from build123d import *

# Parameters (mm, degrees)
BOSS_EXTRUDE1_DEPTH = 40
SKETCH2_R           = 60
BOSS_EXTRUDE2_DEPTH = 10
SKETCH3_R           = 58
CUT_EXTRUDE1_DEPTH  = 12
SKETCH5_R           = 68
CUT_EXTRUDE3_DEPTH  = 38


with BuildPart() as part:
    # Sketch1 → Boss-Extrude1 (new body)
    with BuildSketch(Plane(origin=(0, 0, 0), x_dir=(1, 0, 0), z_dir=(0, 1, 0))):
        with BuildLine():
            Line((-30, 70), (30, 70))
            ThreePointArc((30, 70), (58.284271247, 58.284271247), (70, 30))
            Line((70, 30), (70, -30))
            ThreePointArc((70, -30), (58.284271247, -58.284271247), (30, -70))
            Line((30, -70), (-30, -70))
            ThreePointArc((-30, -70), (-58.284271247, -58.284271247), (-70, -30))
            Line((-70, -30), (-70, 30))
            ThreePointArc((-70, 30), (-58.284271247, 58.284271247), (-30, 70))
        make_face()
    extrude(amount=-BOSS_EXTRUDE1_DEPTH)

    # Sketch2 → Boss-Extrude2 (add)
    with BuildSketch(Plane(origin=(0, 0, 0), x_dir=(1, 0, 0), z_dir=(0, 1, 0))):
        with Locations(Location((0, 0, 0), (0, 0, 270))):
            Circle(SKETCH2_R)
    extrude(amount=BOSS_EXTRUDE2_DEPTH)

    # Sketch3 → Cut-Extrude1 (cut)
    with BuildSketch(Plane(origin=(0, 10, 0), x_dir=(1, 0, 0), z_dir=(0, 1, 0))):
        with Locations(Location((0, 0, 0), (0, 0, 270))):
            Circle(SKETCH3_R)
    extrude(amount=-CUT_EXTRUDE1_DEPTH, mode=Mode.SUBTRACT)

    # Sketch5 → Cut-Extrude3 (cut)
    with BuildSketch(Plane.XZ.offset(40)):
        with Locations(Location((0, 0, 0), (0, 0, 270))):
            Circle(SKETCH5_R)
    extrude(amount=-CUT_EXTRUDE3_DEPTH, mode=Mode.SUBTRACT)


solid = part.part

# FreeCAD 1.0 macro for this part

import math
import FreeCAD as App
import Part
import Sketcher
from FreeCAD import Vector
Q = App.Units.Quantity

doc = App.newDocument("Part")
body = doc.addObject("PartDesign::Body", "Body")

# Sketch on XZ plane
sketch1 = doc.addObject("Sketcher::SketchObject", "Sketch")
body.addObject(sketch1)
sketch1.AttachmentSupport = (doc.XZ_Plane, [""])
sketch1.MapMode = "FlatFace"
sketch1.addGeometry(Part.LineSegment(Vector(30, -70, 0), Vector(-30, -70, 0)), False)
sketch1.addGeometry(Part.ArcOfCircle(Part.Circle(Vector(-30, -30, 0), Vector(0, 0, 1), 40), math.radians(-180), math.radians(-90)), False)
sketch1.addGeometry(Part.LineSegment(Vector(-70, -30, 0), Vector(-70, 30, 0)), False)
sketch1.addGeometry(Part.ArcOfCircle(Part.Circle(Vector(-30, 30, 0), Vector(0, 0, 1), 40), math.radians(90), math.radians(180)), False)
sketch1.addGeometry(Part.LineSegment(Vector(-30, 70, 0), Vector(30, 70, 0)), False)
sketch1.addGeometry(Part.ArcOfCircle(Part.Circle(Vector(30, 30, 0), Vector(0, 0, 1), 40), math.radians(0), math.radians(90)), False)
sketch1.addGeometry(Part.LineSegment(Vector(70, 30, 0), Vector(70, -30, 0)), False)
sketch1.addGeometry(Part.ArcOfCircle(Part.Circle(Vector(30, -30, 0), Vector(0, 0, 1), 40), math.radians(-90), math.radians(0)), False)
sketch1.addConstraint(Sketcher.Constraint("Tangent", 0, 2, 1, 2))
sketch1.addConstraint(Sketcher.Constraint("Tangent", 1, 1, 2, 1))
sketch1.addConstraint(Sketcher.Constraint("Tangent", 2, 2, 3, 2))
sketch1.addConstraint(Sketcher.Constraint("Tangent", 3, 1, 4, 1))
sketch1.addConstraint(Sketcher.Constraint("Tangent", 4, 2, 5, 2))
sketch1.addConstraint(Sketcher.Constraint("Tangent", 5, 1, 6, 1))
sketch1.addConstraint(Sketcher.Constraint("Tangent", 6, 2, 7, 2))
sketch1.addConstraint(Sketcher.Constraint("Tangent", 7, 1, 0, 1))
sketch1.addConstraint(Sketcher.Constraint("Horizontal", 0))
sketch1.addConstraint(Sketcher.Constraint("Vertical", 2))
sketch1.addConstraint(Sketcher.Constraint("Horizontal", 4))
sketch1.addConstraint(Sketcher.Constraint("Vertical", 6))
sketch1.addConstraint(Sketcher.Constraint("Equal", 1, 3))
sketch1.addConstraint(Sketcher.Constraint("Equal", 3, 5))
sketch1.addConstraint(Sketcher.Constraint("Equal", 5, 7))
sketch1.addConstraint(Sketcher.Constraint("Symmetric", 1, 3, 5, 3, -1, 1))
sketch1.addConstraint(Sketcher.Constraint("Equal", 4, 2))
sketch1.addConstraint(Sketcher.Constraint("Radius", 1, Q("40 mm")))
sketch1.addConstraint(Sketcher.Constraint("DistanceX", 0, 2, 0, 1, Q("60 mm")))
pad1 = doc.addObject("PartDesign::Pad", "Pad")
body.addObject(pad1)
pad1.Profile = sketch1
pad1.Length = 40

# Sketch on XZ plane
sketch2 = doc.addObject("Sketcher::SketchObject", "Sketch001")
body.addObject(sketch2)
sketch2.AttachmentSupport = (doc.XZ_Plane, [""])
sketch2.MapMode = "FlatFace"
sketch2.addGeometry(Part.Circle(Vector(0, 0, 0), Vector(0, 0, 1), 60), False)
sketch2.addConstraint(Sketcher.Constraint("Coincident", 0, 3, -1, 1))
sketch2.addConstraint(Sketcher.Constraint("Diameter", 0, Q("120 mm")))
pad2 = doc.addObject("PartDesign::Pad", "Pad001")
body.addObject(pad2)
pad2.Profile = sketch2
pad2.Length = 10
pad2.Reversed = True

# Sketch on XZ plane
sketch3 = doc.addObject("Sketcher::SketchObject", "Sketch002")
body.addObject(sketch3)
sketch3.AttachmentSupport = (doc.XZ_Plane, [""])
sketch3.MapMode = "FlatFace"
sketch3.AttachmentOffset = App.Placement(Vector(0, 0, -10), App.Rotation())
sketch3.addGeometry(Part.Circle(Vector(0, 0, 0), Vector(0, 0, 1), 58), False)
sketch3.addConstraint(Sketcher.Constraint("Coincident", 0, 3, -1, 1))
sketch3.addConstraint(Sketcher.Constraint("Diameter", 0, Q("116 mm")))
pocket1 = doc.addObject("PartDesign::Pocket", "Pocket")
body.addObject(pocket1)
pocket1.Profile = sketch3
pocket1.Length = 12
pocket1.Reversed = True

# Sketch on XZ plane
sketch4 = doc.addObject("Sketcher::SketchObject", "Sketch003")
body.addObject(sketch4)
sketch4.AttachmentSupport = (doc.XZ_Plane, [""])
sketch4.MapMode = "FlatFace"
sketch4.AttachmentOffset = App.Placement(Vector(0, 0, 40), App.Rotation())
sketch4.addGeometry(Part.Circle(Vector(0, 0, 0), Vector(0, 0, 1), 68), False)
sketch4.addConstraint(Sketcher.Constraint("Coincident", 0, 3, -1, 1))
sketch4.addConstraint(Sketcher.Constraint("Diameter", 0, Q("136 mm")))
pocket2 = doc.addObject("PartDesign::Pocket", "Pocket001")
body.addObject(pocket2)
pocket2.Profile = sketch4
pocket2.Length = 38

doc.recompute()
